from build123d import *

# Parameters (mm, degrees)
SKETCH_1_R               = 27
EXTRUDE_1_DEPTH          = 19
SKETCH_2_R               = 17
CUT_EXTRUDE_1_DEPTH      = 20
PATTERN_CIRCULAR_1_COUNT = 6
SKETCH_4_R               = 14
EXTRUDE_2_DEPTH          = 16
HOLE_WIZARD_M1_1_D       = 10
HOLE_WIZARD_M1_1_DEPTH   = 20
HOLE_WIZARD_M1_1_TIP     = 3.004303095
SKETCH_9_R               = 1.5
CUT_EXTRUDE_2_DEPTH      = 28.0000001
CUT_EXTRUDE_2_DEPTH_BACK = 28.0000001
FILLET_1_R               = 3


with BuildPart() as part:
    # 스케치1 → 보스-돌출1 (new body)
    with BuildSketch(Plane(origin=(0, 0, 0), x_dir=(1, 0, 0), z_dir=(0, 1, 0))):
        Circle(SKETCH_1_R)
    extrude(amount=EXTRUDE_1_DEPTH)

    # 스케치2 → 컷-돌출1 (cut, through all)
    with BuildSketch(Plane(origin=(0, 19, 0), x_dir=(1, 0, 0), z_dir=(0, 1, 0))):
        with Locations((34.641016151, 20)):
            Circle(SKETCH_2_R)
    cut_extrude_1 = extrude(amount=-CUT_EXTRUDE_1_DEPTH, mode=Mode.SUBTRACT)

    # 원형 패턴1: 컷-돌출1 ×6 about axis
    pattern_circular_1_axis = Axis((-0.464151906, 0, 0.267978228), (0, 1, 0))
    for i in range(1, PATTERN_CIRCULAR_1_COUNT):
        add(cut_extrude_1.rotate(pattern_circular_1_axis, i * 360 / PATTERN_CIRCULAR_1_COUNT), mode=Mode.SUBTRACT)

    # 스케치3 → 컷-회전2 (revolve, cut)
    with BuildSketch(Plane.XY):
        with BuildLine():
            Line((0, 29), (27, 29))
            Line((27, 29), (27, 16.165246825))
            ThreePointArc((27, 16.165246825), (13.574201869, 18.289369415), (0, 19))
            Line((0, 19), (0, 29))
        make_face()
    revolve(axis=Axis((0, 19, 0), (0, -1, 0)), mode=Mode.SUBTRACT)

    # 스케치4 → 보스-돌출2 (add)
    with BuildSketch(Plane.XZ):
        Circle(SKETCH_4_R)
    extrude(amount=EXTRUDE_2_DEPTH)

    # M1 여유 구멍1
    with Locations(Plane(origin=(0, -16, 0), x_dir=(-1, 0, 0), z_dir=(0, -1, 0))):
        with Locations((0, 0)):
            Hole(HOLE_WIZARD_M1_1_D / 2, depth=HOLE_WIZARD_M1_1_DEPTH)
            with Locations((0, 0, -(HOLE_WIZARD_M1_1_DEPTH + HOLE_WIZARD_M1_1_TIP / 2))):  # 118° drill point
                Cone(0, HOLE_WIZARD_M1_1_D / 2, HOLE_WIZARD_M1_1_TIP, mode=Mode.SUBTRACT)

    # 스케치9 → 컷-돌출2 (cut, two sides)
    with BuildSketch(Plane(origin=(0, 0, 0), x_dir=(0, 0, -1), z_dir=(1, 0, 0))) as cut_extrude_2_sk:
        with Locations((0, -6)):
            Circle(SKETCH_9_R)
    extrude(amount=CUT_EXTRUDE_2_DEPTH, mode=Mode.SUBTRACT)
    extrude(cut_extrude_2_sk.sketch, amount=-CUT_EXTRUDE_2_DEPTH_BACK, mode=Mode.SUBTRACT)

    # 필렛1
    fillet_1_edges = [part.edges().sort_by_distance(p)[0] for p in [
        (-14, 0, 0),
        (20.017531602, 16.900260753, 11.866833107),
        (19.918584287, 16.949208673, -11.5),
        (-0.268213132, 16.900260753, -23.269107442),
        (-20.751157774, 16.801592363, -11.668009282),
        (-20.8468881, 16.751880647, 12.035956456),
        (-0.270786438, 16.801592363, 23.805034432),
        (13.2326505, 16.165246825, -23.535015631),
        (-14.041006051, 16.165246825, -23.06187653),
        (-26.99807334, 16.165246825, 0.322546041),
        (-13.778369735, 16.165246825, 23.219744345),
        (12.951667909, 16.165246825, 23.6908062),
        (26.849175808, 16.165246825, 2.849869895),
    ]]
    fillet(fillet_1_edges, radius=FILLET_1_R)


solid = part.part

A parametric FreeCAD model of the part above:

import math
import FreeCAD as App
import Part
import Sketcher
Q = App.Units.Quantity


def edges_at(feature, points):
    """Names of the edges that pass closest to the given points."""
    edges = feature.Shape.Edges
    near = lambda p: min(range(len(edges)), key=lambda i: edges[i].distToShape(Part.Vertex(*p))[0])
    return sorted({f"Edge{near(p) + 1}" for p in points})

doc = App.newDocument("Part")
body = doc.addObject("PartDesign::Body", "Body")

sketch1 = doc.addObject("Sketcher::SketchObject", "Sketch")
body.addObject(sketch1)
sketch1.AttachmentSupport = (doc.XZ_Plane, [""])
sketch1.MapMode = "FlatFace"
sketch1.addGeometry(Part.Circle(App.Vector(0, 0, 0), App.Vector(0, 0, 1), 27), False)
sketch1.addConstraint([
    Sketcher.Constraint("Coincident", 0, 3, -1, 1),
    Sketcher.Constraint("Diameter", 0, Q("54 mm")),
])
pad1 = doc.addObject("PartDesign::Pad", "Pad")
body.addObject(pad1)
pad1.Profile = sketch1
pad1.Length = 19
pad1.Reversed = True

sketch2 = doc.addObject("Sketcher::SketchObject", "Sketch001")
body.addObject(sketch2)
sketch2.AttachmentSupport = (doc.XZ_Plane, [""])
sketch2.MapMode = "FlatFace"
sketch2.AttachmentOffset = App.Placement(App.Vector(0, 0, -19), App.Rotation())
sketch2.addGeometry(Part.Circle(App.Vector(34.641016, -20, 0), App.Vector(0, 0, 1), 17), False)
sketch2.addConstraint([
    Sketcher.Constraint("Diameter", 0, Q("34 mm")),
    Sketcher.Constraint("DistanceY", 0, 3, -1, 1, Q("20 mm")),
    Sketcher.Constraint("DistanceX", -1, 1, 0, 3, Q("34.641016 mm")),
])
pocket1 = doc.addObject("PartDesign::Pocket", "Pocket")
body.addObject(pocket1)
pocket1.Profile = sketch2
pocket1.Type = "ThroughAll"
pocket1.Reversed = True
doc.recompute()

datumline = doc.addObject("PartDesign::Line", "DatumLine")
body.addObject(datumline)
datumline.Placement = App.Placement(App.Vector(-0.464152, 0, 0.267978), App.Rotation(App.Vector(0, 0, 1), App.Vector(0, 1, 0)))
polarpattern = doc.addObject("PartDesign::PolarPattern", "PolarPattern")
body.addObject(polarpattern)
polarpattern.Originals = [pocket1]
polarpattern.Axis = (datumline, [""])
polarpattern.Angle = 360
polarpattern.Occurrences = 6
body.Tip = polarpattern

sketch3 = doc.addObject("Sketcher::SketchObject", "Sketch002")
body.addObject(sketch3)
sketch3.AttachmentSupport = (doc.XY_Plane, [""])
sketch3.MapMode = "FlatFace"
sketch3.addGeometry([
    Part.LineSegment(App.Vector(27, 29, 0), App.Vector(0, 29, 0)),
    Part.LineSegment(App.Vector(0, 29, 0), App.Vector(0, 19, 0)),
    Part.ArcOfCircle(Part.Circle(App.Vector(0, -111, 0), App.Vector(0, 0, 1), 130), math.radians(78.01285), math.radians(90)),
    Part.LineSegment(App.Vector(27, 16.165247, 0), App.Vector(27, 29, 0)),
], False)
sketch3.addConstraint([
    Sketcher.Constraint("Coincident", 0, 2, 1, 1),
    Sketcher.Constraint("Coincident", 1, 2, 2, 2),
    Sketcher.Constraint("Coincident", 2, 1, 3, 1),
    Sketcher.Constraint("Coincident", 3, 2, 0, 1),
    Sketcher.Constraint("Horizontal", 0),
    Sketcher.Constraint("Vertical", 1),
    Sketcher.Constraint("Vertical", 3),
    Sketcher.Constraint("PointOnObject", 2, 3, -2),
    Sketcher.Constraint("PointOnObject", 0, 2, -2),
    Sketcher.Constraint("Radius", 2, Q("130 mm")),
    Sketcher.Constraint("DistanceX", 0, 2, 0, 1, Q("27 mm")),
    Sketcher.Constraint("DistanceY", 1, 2, 1, 1, Q("10 mm")),
    Sketcher.Constraint("DistanceY", 2, 3, -1, 1, Q("111 mm")),
])
groove = doc.addObject("PartDesign::Groove", "Groove")
body.addObject(groove)
groove.Profile = sketch3
groove.ReferenceAxis = (sketch3, ["V_Axis"])
groove.Angle = 360

sketch4 = doc.addObject("Sketcher::SketchObject", "Sketch003")
body.addObject(sketch4)
sketch4.AttachmentSupport = (doc.XZ_Plane, [""])
sketch4.MapMode = "FlatFace"
sketch4.addGeometry(Part.Circle(App.Vector(0, 0, 0), App.Vector(0, 0, 1), 14), False)
sketch4.addConstraint([
    Sketcher.Constraint("Coincident", 0, 3, -1, 1),
    Sketcher.Constraint("Diameter", 0, Q("28 mm")),
])
pad2 = doc.addObject("PartDesign::Pad", "Pad001")
body.addObject(pad2)
pad2.Profile = sketch4
pad2.Length = 16

sketch5 = doc.addObject("Sketcher::SketchObject", "Sketch004")
body.addObject(sketch5)
sketch5.AttachmentSupport = (doc.XZ_Plane, [""])
sketch5.MapMode = "FlatFace"
sketch5.AttachmentOffset = App.Placement(App.Vector(0, 0, 16), App.Rotation())
sketch5.addGeometry(Part.Circle(App.Vector(0, 0, 0), App.Vector(0, 0, 1), 5), False)
sketch5.addConstraint([
    Sketcher.Constraint("Coincident", 0, 3, -1, 1),
    Sketcher.Constraint("Diameter", 0, Q("10 mm")),
])
doc.recompute()
hole = doc.addObject("PartDesign::Hole", "Hole")
body.addObject(hole)
hole.Profile = sketch5
hole.ThreadType = "None"
hole.Diameter = 10
hole.DepthType = "Dimension"
hole.Depth = 20
hole.DrillPoint = "Angled"
hole.DrillPointAngle = 118

sketch6 = doc.addObject("Sketcher::SketchObject", "Sketch005")
body.addObject(sketch6)
sketch6.AttachmentSupport = (doc.YZ_Plane, [""])
sketch6.MapMode = "FlatFace"
sketch6.addGeometry(Part.Circle(App.Vector(-6, 0, 0), App.Vector(0, 0, 1), 1.5), False)
sketch6.addConstraint([
    Sketcher.Constraint("PointOnObject", 0, 3, -1),
    Sketcher.Constraint("Diameter", 0, Q("3 mm")),
    Sketcher.Constraint("DistanceX", 0, 3, -1, 1, Q("6 mm")),
])
pocket2 = doc.addObject("PartDesign::Pocket", "Pocket001")
body.addObject(pocket2)
pocket2.Profile = sketch6
pocket2.Type = "ThroughAll"
pocket2.Midplane = True
doc.recompute()

fillet = doc.addObject("PartDesign::Fillet", "Fillet")
body.addObject(fillet)
fillet.Base = (pocket2, edges_at(pocket2, [
    (-14, 0, 0),
    (20.018, 16.9, 11.867),
    (19.919, 16.949, -11.5),
    (-0.268, 16.9, -23.269),
    (-20.751, 16.802, -11.668),
    (-20.847, 16.752, 12.036),
    (-0.271, 16.802, 23.805),
    (13.233, 16.165, -23.535),
    (-14.041, 16.165, -23.062),
    (-26.998, 16.165, 0.323),
    (-13.778, 16.165, 23.22),
    (12.952, 16.165, 23.691),
    (26.849, 16.165, 2.85),
]))
fillet.Radius = 3

doc.recompute()
